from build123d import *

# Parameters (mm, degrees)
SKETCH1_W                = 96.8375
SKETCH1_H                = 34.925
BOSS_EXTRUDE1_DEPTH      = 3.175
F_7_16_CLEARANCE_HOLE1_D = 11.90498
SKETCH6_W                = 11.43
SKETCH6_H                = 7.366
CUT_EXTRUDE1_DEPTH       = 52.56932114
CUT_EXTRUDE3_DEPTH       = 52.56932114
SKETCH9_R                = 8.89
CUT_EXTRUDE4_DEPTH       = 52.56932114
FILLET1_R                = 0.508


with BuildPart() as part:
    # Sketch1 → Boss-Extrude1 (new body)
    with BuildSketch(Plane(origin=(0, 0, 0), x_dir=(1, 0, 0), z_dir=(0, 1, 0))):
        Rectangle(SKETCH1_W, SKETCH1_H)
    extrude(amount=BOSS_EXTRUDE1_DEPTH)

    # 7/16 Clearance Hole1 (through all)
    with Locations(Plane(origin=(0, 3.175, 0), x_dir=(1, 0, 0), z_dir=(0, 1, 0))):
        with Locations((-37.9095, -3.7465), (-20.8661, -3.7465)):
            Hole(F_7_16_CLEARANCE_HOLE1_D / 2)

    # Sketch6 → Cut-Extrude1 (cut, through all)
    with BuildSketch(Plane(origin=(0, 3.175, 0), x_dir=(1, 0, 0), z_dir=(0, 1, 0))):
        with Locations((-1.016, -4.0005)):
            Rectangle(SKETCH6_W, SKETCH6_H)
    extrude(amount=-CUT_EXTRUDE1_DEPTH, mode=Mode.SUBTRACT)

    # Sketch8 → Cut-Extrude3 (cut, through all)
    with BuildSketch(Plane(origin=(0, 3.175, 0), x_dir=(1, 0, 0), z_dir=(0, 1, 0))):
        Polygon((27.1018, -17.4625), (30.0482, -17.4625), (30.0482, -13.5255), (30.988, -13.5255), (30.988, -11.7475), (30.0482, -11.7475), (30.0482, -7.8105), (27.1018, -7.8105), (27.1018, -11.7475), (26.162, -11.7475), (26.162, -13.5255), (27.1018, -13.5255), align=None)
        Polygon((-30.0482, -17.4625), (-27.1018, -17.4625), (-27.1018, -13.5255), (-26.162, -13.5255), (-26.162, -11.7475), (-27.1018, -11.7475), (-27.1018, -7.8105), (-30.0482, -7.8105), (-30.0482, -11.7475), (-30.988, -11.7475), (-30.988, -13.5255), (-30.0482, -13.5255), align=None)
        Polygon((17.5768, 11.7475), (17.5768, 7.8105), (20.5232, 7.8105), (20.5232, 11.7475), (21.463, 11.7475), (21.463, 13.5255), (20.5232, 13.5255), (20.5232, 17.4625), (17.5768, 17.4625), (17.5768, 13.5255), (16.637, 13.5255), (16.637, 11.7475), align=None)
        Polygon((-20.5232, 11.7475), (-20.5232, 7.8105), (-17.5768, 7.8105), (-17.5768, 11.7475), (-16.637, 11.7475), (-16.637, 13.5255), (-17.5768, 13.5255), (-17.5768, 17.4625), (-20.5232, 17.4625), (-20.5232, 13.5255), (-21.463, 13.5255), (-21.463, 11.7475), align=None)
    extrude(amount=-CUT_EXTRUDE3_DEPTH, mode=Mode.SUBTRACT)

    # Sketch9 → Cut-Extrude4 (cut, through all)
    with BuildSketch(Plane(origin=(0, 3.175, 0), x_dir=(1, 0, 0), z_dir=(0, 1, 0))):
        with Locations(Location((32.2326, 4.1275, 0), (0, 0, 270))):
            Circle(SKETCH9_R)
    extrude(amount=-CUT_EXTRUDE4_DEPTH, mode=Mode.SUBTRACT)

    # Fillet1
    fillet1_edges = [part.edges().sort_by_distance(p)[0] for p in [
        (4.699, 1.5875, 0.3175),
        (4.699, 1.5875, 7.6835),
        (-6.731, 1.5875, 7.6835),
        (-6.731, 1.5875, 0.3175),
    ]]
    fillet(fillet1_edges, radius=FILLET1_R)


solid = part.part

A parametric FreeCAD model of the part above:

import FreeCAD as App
import Part
import Sketcher

V = App.Vector
Q = App.Units.Quantity


def edges_at(feature, points):
    """Names of the edges that pass closest to the given points."""
    edges = feature.Shape.Edges
    near = lambda p: min(range(len(edges)), key=lambda i: edges[i].distToShape(Part.Vertex(*p))[0])
    return sorted({f"Edge{near(p) + 1}" for p in points})

doc = App.newDocument("Part")
body = doc.addObject("PartDesign::Body", "Body")

# Sketch on XZ plane
sketch1 = body.newObject("Sketcher::SketchObject", "Sketch")
sketch1.AttachmentSupport = (doc.getObject("XZ_Plane"), [""])
sketch1.MapMode = "FlatFace"
sketch1.addGeometry([
    Part.LineSegment(V(-48, -17, 0), V(-48, 17, 0)),
    Part.LineSegment(V(-48, 17, 0), V(48, 17, 0)),
    Part.LineSegment(V(48, 17, 0), V(48, -17, 0)),
    Part.LineSegment(V(48, -17, 0), V(-48, -17, 0)),
], False)
sketch1.addConstraint([
    Sketcher.Constraint("Coincident", 0, 2, 1, 1),
    Sketcher.Constraint("Coincident", 1, 2, 2, 1),
    Sketcher.Constraint("Coincident", 2, 2, 3, 1),
    Sketcher.Constraint("Coincident", 3, 2, 0, 1),
    Sketcher.Constraint("Vertical", 0),
    Sketcher.Constraint("Horizontal", 1),
    Sketcher.Constraint("Vertical", 2),
    Sketcher.Constraint("Horizontal", 3),
    Sketcher.Constraint("Symmetric", 0, 2, 2, 2, -1, 1),
    Sketcher.Constraint("DistanceX", 1, 1, 1, 2, Q("3.8125 in")),
    Sketcher.Constraint("DistanceY", 0, 1, 0, 2, Q("1.375 in")),
])
pad1 = body.newObject("PartDesign::Pad", "Pad")
pad1.Profile = sketch1
pad1.Length = Q("0.125 in")
pad1.Reversed = True

# Sketch on XZ plane
sketch2 = body.newObject("Sketcher::SketchObject", "Sketch001")
sketch2.AttachmentSupport = (doc.getObject("XZ_Plane"), [""])
sketch2.MapMode = "FlatFace"
sketch2.AttachmentOffset = App.Placement(V(0, 0, -0.125 * 25.4), App.Rotation())
sketch2.addGeometry([
    Part.Circle(V(-38, 4, 0), V(0, 0, 1), 6),
    Part.Circle(V(-21, 4, 0), V(0, 0, 1), 6),
], False)
sketch2.addConstraint([
    Sketcher.Constraint("Equal", 0, 1),
    Sketcher.Constraint("Horizontal", 0, 3, 1, 3),
    Sketcher.Constraint("Diameter", 0, Q("0.4687 in")),
    Sketcher.Constraint("DistanceX", 0, 3, 1, 3, Q("0.671 in")),
    Sketcher.Constraint("DistanceX", 0, 3, -1, 1, Q("1.4925 in")),
    Sketcher.Constraint("DistanceY", -1, 1, 0, 3, Q("0.1475 in")),
])
doc.recompute()
hole = body.newObject("PartDesign::Hole", "Hole")
hole.Profile = sketch2
hole.ThreadType = "None"
hole.Diameter = Q("0.4687 in")
hole.DepthType = "ThroughAll"
hole.Reversed = True

# Sketch on XZ plane
sketch3 = body.newObject("Sketcher::SketchObject", "Sketch002")
sketch3.AttachmentSupport = (doc.getObject("XZ_Plane"), [""])
sketch3.MapMode = "FlatFace"
sketch3.AttachmentOffset = App.Placement(V(0, 0, -0.125 * 25.4), App.Rotation())
sketch3.addGeometry([
    Part.LineSegment(V(-7, 0, 0), V(-7, 8, 0)),
    Part.LineSegment(V(-7, 8, 0), V(5, 8, 0)),
    Part.LineSegment(V(5, 8, 0), V(5, 0, 0)),
    Part.LineSegment(V(5, 0, 0), V(-7, 0, 0)),
], False)
sketch3.addConstraint([
    Sketcher.Constraint("Coincident", 0, 2, 1, 1),
    Sketcher.Constraint("Coincident", 1, 2, 2, 1),
    Sketcher.Constraint("Coincident", 2, 2, 3, 1),
    Sketcher.Constraint("Coincident", 3, 2, 0, 1),
    Sketcher.Constraint("Vertical", 0),
    Sketcher.Constraint("Horizontal", 1),
    Sketcher.Constraint("Vertical", 2),
    Sketcher.Constraint("Horizontal", 3),
    Sketcher.Constraint("DistanceX", 1, 1, 1, 2, Q("0.45 in")),
    Sketcher.Constraint("DistanceY", 0, 1, 0, 2, Q("0.29 in")),
    Sketcher.Constraint("DistanceX", 0, 2, -1, 1, Q("0.265 in")),
    Sketcher.Constraint("DistanceY", -1, 1, 0, 2, Q("0.3025 in")),
])
pocket1 = body.newObject("PartDesign::Pocket", "Pocket")
pocket1.Profile = sketch3
pocket1.Type = "ThroughAll"
pocket1.Reversed = True

# Sketch on XZ plane
sketch4 = body.newObject("Sketcher::SketchObject", "Sketch003")
sketch4.AttachmentSupport = (doc.getObject("XZ_Plane"), [""])
sketch4.MapMode = "FlatFace"
sketch4.AttachmentOffset = App.Placement(V(0, 0, -0.125 * 25.4), App.Rotation())
sketch4.addGeometry([
    Part.LineSegment(V(27.1, 17.5, 0), V(30, 17.5, 0)),  # 0
    Part.LineSegment(V(30, 17.5, 0), V(30, 13.5, 0)),  # 1
    Part.LineSegment(V(30, 13.5, 0), V(31, 13.5, 0)),  # 2
    Part.LineSegment(V(31, 13.5, 0), V(31, 11.7, 0)),  # 3
    Part.LineSegment(V(31, 11.7, 0), V(30, 11.7, 0)),  # 4
    Part.LineSegment(V(30, 11.7, 0), V(30, 7.8, 0)),  # 5
    Part.LineSegment(V(30, 7.8, 0), V(27.1, 7.8, 0)),  # 6
    Part.LineSegment(V(27.1, 7.8, 0), V(27.1, 11.7, 0)),  # 7
    Part.LineSegment(V(27.1, 11.7, 0), V(26.2, 11.7, 0)),  # 8
    Part.LineSegment(V(26.2, 11.7, 0), V(26.2, 13.5, 0)),  # 9
    Part.LineSegment(V(26.2, 13.5, 0), V(27.1, 13.5, 0)),  # 10
    Part.LineSegment(V(27.1, 13.5, 0), V(27.1, 17.5, 0)),  # 11
    Part.LineSegment(V(-30, 17.5, 0), V(-27.1, 17.5, 0)),  # 12
    Part.LineSegment(V(-27.1, 17.5, 0), V(-27.1, 13.5, 0)),  # 13
    Part.LineSegment(V(-27.1, 13.5, 0), V(-26.2, 13.5, 0)),  # 14
    Part.LineSegment(V(-26.2, 13.5, 0), V(-26.2, 11.7, 0)),  # 15
    Part.LineSegment(V(-26.2, 11.7, 0), V(-27.1, 11.7, 0)),  # 16
    Part.LineSegment(V(-27.1, 11.7, 0), V(-27.1, 7.8, 0)),  # 17
    Part.LineSegment(V(-27.1, 7.8, 0), V(-30, 7.8, 0)),  # 18
    Part.LineSegment(V(-30, 7.8, 0), V(-30, 11.7, 0)),  # 19
    Part.LineSegment(V(-30, 11.7, 0), V(-31, 11.7, 0)),  # 20
    Part.LineSegment(V(-31, 11.7, 0), V(-31, 13.5, 0)),  # 21
    Part.LineSegment(V(-31, 13.5, 0), V(-30, 13.5, 0)),  # 22
    Part.LineSegment(V(-30, 13.5, 0), V(-30, 17.5, 0)),  # 23
    Part.LineSegment(V(17.6, -11.7, 0), V(17.6, -7.8, 0)),  # 24
    Part.LineSegment(V(17.6, -7.8, 0), V(20.5, -7.8, 0)),  # 25
    Part.LineSegment(V(20.5, -7.8, 0), V(20.5, -11.7, 0)),  # 26
    Part.LineSegment(V(20.5, -11.7, 0), V(21.5, -11.7, 0)),  # 27
    Part.LineSegment(V(21.5, -11.7, 0), V(21.5, -13.5, 0)),  # 28
    Part.LineSegment(V(21.5, -13.5, 0), V(20.5, -13.5, 0)),  # 29
    Part.LineSegment(V(20.5, -13.5, 0), V(20.5, -17.5, 0)),  # 30
    Part.LineSegment(V(20.5, -17.5, 0), V(17.6, -17.5, 0)),  # 31
    Part.LineSegment(V(17.6, -17.5, 0), V(17.6, -13.5, 0)),  # 32
    Part.LineSegment(V(17.6, -13.5, 0), V(16.6, -13.5, 0)),  # 33
    Part.LineSegment(V(16.6, -13.5, 0), V(16.6, -11.7, 0)),  # 34
    Part.LineSegment(V(16.6, -11.7, 0), V(17.6, -11.7, 0)),  # 35
    Part.LineSegment(V(-20.5, -11.7, 0), V(-20.5, -7.8, 0)),  # 36
    Part.LineSegment(V(-20.5, -7.8, 0), V(-17.6, -7.8, 0)),  # 37
    Part.LineSegment(V(-17.6, -7.8, 0), V(-17.6, -11.7, 0)),  # 38
    Part.LineSegment(V(-17.6, -11.7, 0), V(-16.6, -11.7, 0)),  # 39
    Part.LineSegment(V(-16.6, -11.7, 0), V(-16.6, -13.5, 0)),  # 40
    Part.LineSegment(V(-16.6, -13.5, 0), V(-17.6, -13.5, 0)),  # 41
    Part.LineSegment(V(-17.6, -13.5, 0), V(-17.6, -17.5, 0)),  # 42
    Part.LineSegment(V(-17.6, -17.5, 0), V(-20.5, -17.5, 0)),  # 43
    Part.LineSegment(V(-20.5, -17.5, 0), V(-20.5, -13.5, 0)),  # 44
    Part.LineSegment(V(-20.5, -13.5, 0), V(-21.5, -13.5, 0)),  # 45
    Part.LineSegment(V(-21.5, -13.5, 0), V(-21.5, -11.7, 0)),  # 46
    Part.LineSegment(V(-21.5, -11.7, 0), V(-20.5, -11.7, 0)),  # 47
], False)
sketch4.addConstraint([
    Sketcher.Constraint("Coincident", 0, 2, 1, 1),
    Sketcher.Constraint("Coincident", 1, 2, 2, 1),
    Sketcher.Constraint("Coincident", 2, 2, 3, 1),
    Sketcher.Constraint("Coincident", 3, 2, 4, 1),
    Sketcher.Constraint("Coincident", 4, 2, 5, 1),
    Sketcher.Constraint("Coincident", 5, 2, 6, 1),
    Sketcher.Constraint("Coincident", 6, 2, 7, 1),
    Sketcher.Constraint("Coincident", 7, 2, 8, 1),
    Sketcher.Constraint("Coincident", 8, 2, 9, 1),
    Sketcher.Constraint("Coincident", 9, 2, 10, 1),
    Sketcher.Constraint("Coincident", 10, 2, 11, 1),
    Sketcher.Constraint("Coincident", 11, 2, 0, 1),
    Sketcher.Constraint("Coincident", 12, 2, 13, 1),
    Sketcher.Constraint("Coincident", 13, 2, 14, 1),
    Sketcher.Constraint("Coincident", 14, 2, 15, 1),
    Sketcher.Constraint("Coincident", 15, 2, 16, 1),
    Sketcher.Constraint("Coincident", 16, 2, 17, 1),
    Sketcher.Constraint("Coincident", 17, 2, 18, 1),
    Sketcher.Constraint("Coincident", 18, 2, 19, 1),
    Sketcher.Constraint("Coincident", 19, 2, 20, 1),
    Sketcher.Constraint("Coincident", 20, 2, 21, 1),
    Sketcher.Constraint("Coincident", 21, 2, 22, 1),
    Sketcher.Constraint("Coincident", 22, 2, 23, 1),
    Sketcher.Constraint("Coincident", 23, 2, 12, 1),
    Sketcher.Constraint("Coincident", 24, 2, 25, 1),
    Sketcher.Constraint("Coincident", 25, 2, 26, 1),
    Sketcher.Constraint("Coincident", 26, 2, 27, 1),
    Sketcher.Constraint("Coincident", 27, 2, 28, 1),
    Sketcher.Constraint("Coincident", 28, 2, 29, 1),
    Sketcher.Constraint("Coincident", 29, 2, 30, 1),
    Sketcher.Constraint("Coincident", 30, 2, 31, 1),
    Sketcher.Constraint("Coincident", 31, 2, 32, 1),
    Sketcher.Constraint("Coincident", 32, 2, 33, 1),
    Sketcher.Constraint("Coincident", 33, 2, 34, 1),
    Sketcher.Constraint("Coincident", 34, 2, 35, 1),
    Sketcher.Constraint("Coincident", 35, 2, 24, 1),
    Sketcher.Constraint("Coincident", 36, 2, 37, 1),
    Sketcher.Constraint("Coincident", 37, 2, 38, 1),
    Sketcher.Constraint("Coincident", 38, 2, 39, 1),
    Sketcher.Constraint("Coincident", 39, 2, 40, 1),
    Sketcher.Constraint("Coincident", 40, 2, 41, 1),
    Sketcher.Constraint("Coincident", 41, 2, 42, 1),
    Sketcher.Constraint("Coincident", 42, 2, 43, 1),
    Sketcher.Constraint("Coincident", 43, 2, 44, 1),
    Sketcher.Constraint("Coincident", 44, 2, 45, 1),
    Sketcher.Constraint("Coincident", 45, 2, 46, 1),
    Sketcher.Constraint("Coincident", 46, 2, 47, 1),
    Sketcher.Constraint("Coincident", 47, 2, 36, 1),
    Sketcher.Constraint("Horizontal", 0),
    Sketcher.Constraint("Vertical", 1),
    Sketcher.Constraint("Horizontal", 2),
    Sketcher.Constraint("Vertical", 3),
    Sketcher.Constraint("Horizontal", 4),
    Sketcher.Constraint("Vertical", 5),
    Sketcher.Constraint("Horizontal", 6),
    Sketcher.Constraint("Vertical", 7),
    Sketcher.Constraint("Horizontal", 8),
    Sketcher.Constraint("Vertical", 9),
    Sketcher.Constraint("Horizontal", 10),
    Sketcher.Constraint("Vertical", 11),
    Sketcher.Constraint("Horizontal", 12),
    Sketcher.Constraint("Vertical", 13),
    Sketcher.Constraint("Horizontal", 14),
    Sketcher.Constraint("Vertical", 15),
    Sketcher.Constraint("Horizontal", 16),
    Sketcher.Constraint("Vertical", 17),
    Sketcher.Constraint("Horizontal", 18),
    Sketcher.Constraint("Vertical", 19),
    Sketcher.Constraint("Horizontal", 20),
    Sketcher.Constraint("Vertical", 21),
    Sketcher.Constraint("Horizontal", 22),
    Sketcher.Constraint("Vertical", 23),
    Sketcher.Constraint("Vertical", 24),
    Sketcher.Constraint("Horizontal", 25),
    Sketcher.Constraint("Vertical", 26),
    Sketcher.Constraint("Horizontal", 27),
    Sketcher.Constraint("Vertical", 28),
    Sketcher.Constraint("Horizontal", 29),
    Sketcher.Constraint("Vertical", 30),
    Sketcher.Constraint("Horizontal", 31),
    Sketcher.Constraint("Vertical", 32),
    Sketcher.Constraint("Horizontal", 33),
    Sketcher.Constraint("Vertical", 34),
    Sketcher.Constraint("Horizontal", 35),
    Sketcher.Constraint("Vertical", 36),
    Sketcher.Constraint("Horizontal", 37),
    Sketcher.Constraint("Vertical", 38),
    Sketcher.Constraint("Horizontal", 39),
    Sketcher.Constraint("Vertical", 40),
    Sketcher.Constraint("Horizontal", 41),
    Sketcher.Constraint("Vertical", 42),
    Sketcher.Constraint("Horizontal", 43),
    Sketcher.Constraint("Vertical", 44),
    Sketcher.Constraint("Horizontal", 45),
    Sketcher.Constraint("Vertical", 46),
    Sketcher.Constraint("Horizontal", 47),
    Sketcher.Constraint("Symmetric", 11, 2, 12, 2, -2),
    Sketcher.Constraint("Symmetric", 9, 2, 14, 2, -2),
    Sketcher.Constraint("Symmetric", 7, 2, 16, 2, -2),
    Sketcher.Constraint("Symmetric", 5, 2, 18, 2, -2),
    Sketcher.Constraint("Symmetric", 3, 2, 20, 2, -2),
    Sketcher.Constraint("Symmetric", 1, 2, 22, 2, -2),
    Sketcher.Constraint("Symmetric", 25, 2, 36, 2, -2),
    Sketcher.Constraint("Symmetric", 35, 2, 38, 2, -2),
    Sketcher.Constraint("Symmetric", 33, 2, 40, 2, -2),
    Sketcher.Constraint("Symmetric", 31, 2, 42, 2, -2),
    Sketcher.Constraint("Symmetric", 29, 2, 44, 2, -2),
    Sketcher.Constraint("Symmetric", 27, 2, 46, 2, -2),
    Sketcher.Constraint("Horizontal", 4, 2, 7, 2),
    Sketcher.Constraint("Horizontal", 2, 2, 9, 2),
    Sketcher.Constraint("Horizontal", 29, 2, 32, 2),
    Sketcher.Constraint("Horizontal", 27, 2, 34, 2),
    Sketcher.Constraint("Vertical", 1, 2, 4, 2),
    Sketcher.Constraint("Vertical", 7, 2, 10, 2),
    Sketcher.Constraint("Vertical", 26, 2, 29, 2),
    Sketcher.Constraint("Vertical", 24, 2, 31, 2),
    Sketcher.Constraint("Equal", 4, 8),
    Sketcher.Constraint("Equal", 18, 25),
    Sketcher.Constraint("Equal", 22, 27),
    Sketcher.Constraint("Equal", 29, 33),
    Sketcher.Constraint("Equal", 1, 5),
    Sketcher.Constraint("Equal", 23, 24),
    Sketcher.Constraint("Equal", 21, 28),
    Sketcher.Constraint("Equal", 26, 30),
    Sketcher.Constraint("DistanceY", 3, 2, 3, 1, Q("0.07 in")),
    Sketcher.Constraint("DistanceX", 0, 1, 0, 2, Q("0.116 in")),
    Sketcher.Constraint("DistanceX", 2, 1, 2, 2, Q("0.037 in")),
    Sketcher.Constraint("DistanceY", 1, 2, 1, 1, Q("0.155 in")),
    Sketcher.Constraint("DistanceX", -1, 1, 2, 2, Q("1.22 in")),
    Sketcher.Constraint("DistanceY", 24, 2, 8, 2, Q("0.77 in")),
    Sketcher.Constraint("DistanceY", -1, 1, 0, 2, Q("0.6875 in")),
    Sketcher.Constraint("DistanceX", -1, 1, 24, 2, Q("0.692 in")),
])
pocket2 = body.newObject("PartDesign::Pocket", "Pocket001")
pocket2.Profile = sketch4
pocket2.Type = "ThroughAll"
pocket2.Reversed = True

# Sketch on XZ plane
sketch5 = body.newObject("Sketcher::SketchObject", "Sketch004")
sketch5.AttachmentSupport = (doc.getObject("XZ_Plane"), [""])
sketch5.MapMode = "FlatFace"
sketch5.AttachmentOffset = App.Placement(V(0, 0, -0.125 * 25.4), App.Rotation())
sketch5.addGeometry(Part.Circle(V(32, -4, 0), V(0, 0, 1), 9), False)
sketch5.addConstraint([
    Sketcher.Constraint("Diameter", 0, Q("0.7 in")),
    Sketcher.Constraint("DistanceX", -1, 1, 0, 3, Q("1.269 in")),
    Sketcher.Constraint("DistanceY", 0, 3, -1, 1, Q("0.1625 in")),
])
pocket3 = body.newObject("PartDesign::Pocket", "Pocket002")
pocket3.Profile = sketch5
pocket3.Type = "ThroughAll"
pocket3.Reversed = True
doc.recompute()

fillet = body.newObject("PartDesign::Fillet", "Fillet")
fillet.Base = (pocket3, edges_at(pocket3, [
    (4.699, 1.587, 0.318),
    (4.699, 1.587, 7.684),
    (-6.731, 1.587, 7.684),
    (-6.731, 1.587, 0.318),
]))
fillet.Radius = Q("0.02 in")

doc.recompute()
